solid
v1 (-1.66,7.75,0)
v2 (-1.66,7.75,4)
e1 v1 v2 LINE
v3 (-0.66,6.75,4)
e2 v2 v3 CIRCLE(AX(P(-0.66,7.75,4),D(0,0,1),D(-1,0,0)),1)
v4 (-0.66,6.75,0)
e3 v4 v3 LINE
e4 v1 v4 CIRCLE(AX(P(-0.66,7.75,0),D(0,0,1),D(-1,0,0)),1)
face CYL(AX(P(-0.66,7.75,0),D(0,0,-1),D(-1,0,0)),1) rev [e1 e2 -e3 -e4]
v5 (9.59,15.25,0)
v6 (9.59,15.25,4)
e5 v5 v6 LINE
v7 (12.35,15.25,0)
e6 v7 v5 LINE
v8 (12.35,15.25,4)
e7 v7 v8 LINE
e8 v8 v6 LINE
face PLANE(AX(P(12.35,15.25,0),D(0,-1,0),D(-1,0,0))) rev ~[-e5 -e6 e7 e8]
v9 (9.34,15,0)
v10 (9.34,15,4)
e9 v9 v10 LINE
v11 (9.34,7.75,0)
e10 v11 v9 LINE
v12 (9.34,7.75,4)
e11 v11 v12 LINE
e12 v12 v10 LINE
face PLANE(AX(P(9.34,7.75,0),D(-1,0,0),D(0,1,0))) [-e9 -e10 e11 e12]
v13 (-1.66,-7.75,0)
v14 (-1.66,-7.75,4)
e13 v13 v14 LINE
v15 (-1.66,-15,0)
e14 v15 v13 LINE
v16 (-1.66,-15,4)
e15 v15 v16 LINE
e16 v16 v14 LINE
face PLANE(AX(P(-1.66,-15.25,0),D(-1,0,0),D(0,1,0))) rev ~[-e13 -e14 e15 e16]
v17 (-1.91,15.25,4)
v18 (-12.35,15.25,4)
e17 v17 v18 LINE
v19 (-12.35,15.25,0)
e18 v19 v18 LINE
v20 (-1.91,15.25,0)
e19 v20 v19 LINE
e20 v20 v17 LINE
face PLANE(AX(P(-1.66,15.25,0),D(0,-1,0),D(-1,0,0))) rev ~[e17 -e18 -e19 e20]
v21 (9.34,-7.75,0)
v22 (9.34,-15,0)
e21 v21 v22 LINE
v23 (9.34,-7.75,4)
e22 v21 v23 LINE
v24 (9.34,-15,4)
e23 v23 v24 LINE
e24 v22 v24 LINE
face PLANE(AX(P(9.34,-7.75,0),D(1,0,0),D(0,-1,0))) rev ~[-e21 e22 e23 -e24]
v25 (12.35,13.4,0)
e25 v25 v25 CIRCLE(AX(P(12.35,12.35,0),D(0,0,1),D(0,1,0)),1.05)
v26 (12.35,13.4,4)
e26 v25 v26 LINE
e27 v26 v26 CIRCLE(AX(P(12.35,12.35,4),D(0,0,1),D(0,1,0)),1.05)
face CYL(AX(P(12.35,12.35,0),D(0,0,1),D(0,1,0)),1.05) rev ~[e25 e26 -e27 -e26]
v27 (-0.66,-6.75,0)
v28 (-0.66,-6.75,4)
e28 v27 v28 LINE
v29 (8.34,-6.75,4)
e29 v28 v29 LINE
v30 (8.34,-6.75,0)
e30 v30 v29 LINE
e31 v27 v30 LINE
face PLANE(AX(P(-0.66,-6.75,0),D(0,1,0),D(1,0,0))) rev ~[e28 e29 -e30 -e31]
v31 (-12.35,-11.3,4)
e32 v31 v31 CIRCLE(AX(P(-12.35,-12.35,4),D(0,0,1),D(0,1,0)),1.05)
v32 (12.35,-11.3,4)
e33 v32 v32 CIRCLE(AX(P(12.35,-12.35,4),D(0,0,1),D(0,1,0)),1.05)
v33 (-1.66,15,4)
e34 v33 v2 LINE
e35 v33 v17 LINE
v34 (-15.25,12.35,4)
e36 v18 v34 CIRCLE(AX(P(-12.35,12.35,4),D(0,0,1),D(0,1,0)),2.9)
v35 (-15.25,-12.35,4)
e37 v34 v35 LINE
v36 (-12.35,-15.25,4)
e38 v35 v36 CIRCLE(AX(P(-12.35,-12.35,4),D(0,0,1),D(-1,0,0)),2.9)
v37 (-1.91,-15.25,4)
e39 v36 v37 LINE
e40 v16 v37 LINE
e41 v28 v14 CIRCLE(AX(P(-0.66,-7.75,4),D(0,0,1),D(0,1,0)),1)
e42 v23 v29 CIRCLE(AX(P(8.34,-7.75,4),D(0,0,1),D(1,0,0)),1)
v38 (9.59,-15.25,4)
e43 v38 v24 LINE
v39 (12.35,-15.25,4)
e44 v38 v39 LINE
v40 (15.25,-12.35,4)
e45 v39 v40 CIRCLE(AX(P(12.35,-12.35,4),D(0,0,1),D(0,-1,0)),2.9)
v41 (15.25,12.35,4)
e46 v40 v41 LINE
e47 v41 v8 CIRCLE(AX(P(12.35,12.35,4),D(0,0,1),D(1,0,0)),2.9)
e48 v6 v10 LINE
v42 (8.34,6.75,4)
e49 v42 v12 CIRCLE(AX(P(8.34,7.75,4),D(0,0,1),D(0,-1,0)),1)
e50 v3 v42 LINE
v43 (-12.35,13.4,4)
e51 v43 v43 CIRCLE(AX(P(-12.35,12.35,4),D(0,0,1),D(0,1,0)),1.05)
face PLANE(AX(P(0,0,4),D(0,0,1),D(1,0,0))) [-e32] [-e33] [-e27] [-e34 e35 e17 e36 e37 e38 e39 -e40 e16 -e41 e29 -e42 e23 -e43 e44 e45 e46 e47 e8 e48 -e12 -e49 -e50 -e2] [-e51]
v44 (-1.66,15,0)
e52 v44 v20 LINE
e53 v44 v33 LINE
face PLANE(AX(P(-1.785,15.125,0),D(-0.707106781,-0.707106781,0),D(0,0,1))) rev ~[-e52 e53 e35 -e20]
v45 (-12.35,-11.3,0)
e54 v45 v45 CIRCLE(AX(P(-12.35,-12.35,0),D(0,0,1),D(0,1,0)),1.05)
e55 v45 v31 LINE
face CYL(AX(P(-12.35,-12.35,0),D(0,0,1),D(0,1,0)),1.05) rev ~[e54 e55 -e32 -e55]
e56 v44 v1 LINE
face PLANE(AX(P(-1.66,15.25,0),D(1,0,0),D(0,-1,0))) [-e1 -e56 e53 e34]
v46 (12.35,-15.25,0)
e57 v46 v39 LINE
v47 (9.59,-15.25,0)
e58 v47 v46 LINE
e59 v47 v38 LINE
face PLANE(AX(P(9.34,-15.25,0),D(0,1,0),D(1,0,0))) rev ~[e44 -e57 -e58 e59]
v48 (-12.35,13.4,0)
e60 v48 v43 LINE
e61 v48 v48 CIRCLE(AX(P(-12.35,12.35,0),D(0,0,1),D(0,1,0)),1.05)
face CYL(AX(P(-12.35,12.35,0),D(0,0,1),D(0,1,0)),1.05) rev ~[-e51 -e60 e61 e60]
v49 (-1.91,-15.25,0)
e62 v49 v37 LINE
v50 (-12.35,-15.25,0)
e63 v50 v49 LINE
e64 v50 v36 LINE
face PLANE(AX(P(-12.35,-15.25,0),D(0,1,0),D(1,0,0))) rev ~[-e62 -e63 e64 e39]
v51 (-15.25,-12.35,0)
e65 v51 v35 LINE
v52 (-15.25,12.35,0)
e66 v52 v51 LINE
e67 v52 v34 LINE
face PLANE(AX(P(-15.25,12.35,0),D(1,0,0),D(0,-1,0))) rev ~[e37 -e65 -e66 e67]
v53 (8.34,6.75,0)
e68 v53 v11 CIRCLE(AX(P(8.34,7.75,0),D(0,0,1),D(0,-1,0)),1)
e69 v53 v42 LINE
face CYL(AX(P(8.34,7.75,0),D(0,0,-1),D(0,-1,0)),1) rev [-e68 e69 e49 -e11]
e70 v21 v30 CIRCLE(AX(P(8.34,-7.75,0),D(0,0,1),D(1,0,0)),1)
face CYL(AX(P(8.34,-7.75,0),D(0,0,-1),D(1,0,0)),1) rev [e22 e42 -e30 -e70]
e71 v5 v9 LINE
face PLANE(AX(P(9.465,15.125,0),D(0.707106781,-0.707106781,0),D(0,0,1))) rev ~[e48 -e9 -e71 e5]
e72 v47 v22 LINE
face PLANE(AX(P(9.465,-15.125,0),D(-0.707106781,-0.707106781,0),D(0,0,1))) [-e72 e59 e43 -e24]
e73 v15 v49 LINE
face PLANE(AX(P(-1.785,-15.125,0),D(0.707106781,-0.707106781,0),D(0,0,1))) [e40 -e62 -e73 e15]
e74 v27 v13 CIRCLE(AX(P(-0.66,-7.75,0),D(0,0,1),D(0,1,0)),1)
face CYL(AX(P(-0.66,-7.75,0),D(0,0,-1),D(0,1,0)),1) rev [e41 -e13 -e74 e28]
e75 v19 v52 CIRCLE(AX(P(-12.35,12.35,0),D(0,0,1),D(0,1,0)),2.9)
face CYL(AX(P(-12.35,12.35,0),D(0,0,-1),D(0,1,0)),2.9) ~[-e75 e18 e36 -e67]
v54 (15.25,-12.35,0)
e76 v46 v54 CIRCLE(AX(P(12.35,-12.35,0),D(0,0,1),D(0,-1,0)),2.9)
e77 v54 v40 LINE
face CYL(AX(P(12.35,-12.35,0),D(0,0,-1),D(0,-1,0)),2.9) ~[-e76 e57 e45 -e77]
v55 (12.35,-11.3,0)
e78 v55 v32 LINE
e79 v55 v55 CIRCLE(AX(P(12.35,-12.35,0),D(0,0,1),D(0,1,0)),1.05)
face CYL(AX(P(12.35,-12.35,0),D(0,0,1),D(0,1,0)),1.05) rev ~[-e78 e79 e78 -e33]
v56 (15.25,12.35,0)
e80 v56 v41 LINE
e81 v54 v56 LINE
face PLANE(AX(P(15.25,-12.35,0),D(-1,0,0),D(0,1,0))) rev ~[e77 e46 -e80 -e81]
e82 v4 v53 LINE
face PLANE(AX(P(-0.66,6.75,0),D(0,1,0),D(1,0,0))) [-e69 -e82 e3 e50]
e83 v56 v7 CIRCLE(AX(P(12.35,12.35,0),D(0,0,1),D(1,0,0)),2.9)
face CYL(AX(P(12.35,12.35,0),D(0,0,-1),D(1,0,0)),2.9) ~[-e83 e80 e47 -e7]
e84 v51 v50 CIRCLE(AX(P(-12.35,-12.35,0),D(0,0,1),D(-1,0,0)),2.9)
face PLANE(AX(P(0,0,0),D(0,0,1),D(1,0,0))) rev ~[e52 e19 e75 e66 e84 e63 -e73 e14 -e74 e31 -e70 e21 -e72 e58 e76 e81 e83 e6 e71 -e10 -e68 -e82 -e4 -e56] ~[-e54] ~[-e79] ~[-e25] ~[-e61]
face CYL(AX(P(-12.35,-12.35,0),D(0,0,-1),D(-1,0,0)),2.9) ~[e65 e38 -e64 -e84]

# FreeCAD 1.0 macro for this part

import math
import FreeCAD as App
import Part
import Sketcher
from FreeCAD import Vector


def edges_at(feature, points):
    """Names of the edges that pass closest to the given points."""
    edges = feature.Shape.Edges
    near = lambda p: min(range(len(edges)), key=lambda i: edges[i].distToShape(Part.Vertex(*p))[0])
    return sorted({f"Edge{near(p) + 1}" for p in points})

doc = App.newDocument("Part")
body = doc.addObject("PartDesign::Body", "Body")

# Sketch on XY plane
sketch1 = body.newObject("Sketcher::SketchObject", "Sketch")
sketch1.AttachmentSupport = (doc.getObject("XY_Plane"), [""])
sketch1.MapMode = "FlatFace"
sketch1.addGeometry(Part.ArcOfCircle(Part.Circle(Vector(12.3, 12.3, 0), Vector(0, 0, 1), 2.9), math.radians(0), math.radians(90)), False)
sketch1.addGeometry(Part.LineSegment(Vector(12.3, 15.2, 0), Vector(9.3, 15.2, 0)), False)
sketch1.addGeometry(Part.LineSegment(Vector(9.3, 15.2, 0), Vector(9.3, 7.8, 0)), False)
sketch1.addGeometry(Part.ArcOfCircle(Part.Circle(Vector(8.3, 7.8, 0), Vector(0, 0, 1), 1), math.radians(-90), math.radians(0)), False)
sketch1.addGeometry(Part.LineSegment(Vector(8.3, 6.8, 0), Vector(-0.7, 6.8, 0)), False)
sketch1.addGeometry(Part.ArcOfCircle(Part.Circle(Vector(-0.7, 7.8, 0), Vector(0, 0, 1), 1), math.radians(180), math.radians(270)), False)
sketch1.addGeometry(Part.LineSegment(Vector(-1.7, 7.8, 0), Vector(-1.7, 15.2, 0)), False)
sketch1.addGeometry(Part.LineSegment(Vector(-1.7, 15.2, 0), Vector(-12.3, 15.2, 0)), False)
sketch1.addGeometry(Part.ArcOfCircle(Part.Circle(Vector(-12.3, 12.3, 0), Vector(0, 0, 1), 2.9), math.radians(90), math.radians(180)), False)
sketch1.addGeometry(Part.LineSegment(Vector(-15.2, 12.3, 0), Vector(-15.2, -12.3, 0)), False)
sketch1.addGeometry(Part.ArcOfCircle(Part.Circle(Vector(-12.3, -12.3, 0), Vector(0, 0, 1), 2.9), math.radians(180), math.radians(270)), False)
sketch1.addGeometry(Part.LineSegment(Vector(-12.3, -15.2, 0), Vector(-1.7, -15.2, 0)), False)
sketch1.addGeometry(Part.LineSegment(Vector(-1.7, -15.2, 0), Vector(-1.7, -7.8, 0)), False)
sketch1.addGeometry(Part.ArcOfCircle(Part.Circle(Vector(-0.7, -7.8, 0), Vector(0, 0, 1), 1), math.radians(90), math.radians(180)), False)
sketch1.addGeometry(Part.LineSegment(Vector(-0.7, -6.8, 0), Vector(8.3, -6.8, 0)), False)
sketch1.addGeometry(Part.ArcOfCircle(Part.Circle(Vector(8.3, -7.8, 0), Vector(0, 0, 1), 1), math.radians(0), math.radians(90)), False)
sketch1.addGeometry(Part.LineSegment(Vector(9.3, -7.8, 0), Vector(9.3, -15.2, 0)), False)
sketch1.addGeometry(Part.LineSegment(Vector(9.3, -15.2, 0), Vector(12.3, -15.2, 0)), False)
sketch1.addGeometry(Part.ArcOfCircle(Part.Circle(Vector(12.3, -12.3, 0), Vector(0, 0, 1), 2.9), math.radians(-90), math.radians(0)), False)
sketch1.addGeometry(Part.LineSegment(Vector(15.2, -12.3, 0), Vector(15.2, 12.3, 0)), False)
sketch1.addConstraint(Sketcher.Constraint("Tangent", 0, 2, 1, 1))
sketch1.addConstraint(Sketcher.Constraint("Coincident", 1, 2, 2, 1))
sketch1.addConstraint(Sketcher.Constraint("Tangent", 2, 2, 3, 2))
sketch1.addConstraint(Sketcher.Constraint("Tangent", 3, 1, 4, 1))
sketch1.addConstraint(Sketcher.Constraint("Tangent", 4, 2, 5, 2))
sketch1.addConstraint(Sketcher.Constraint("Tangent", 5, 1, 6, 1))
sketch1.addConstraint(Sketcher.Constraint("Coincident", 6, 2, 7, 1))
sketch1.addConstraint(Sketcher.Constraint("Tangent", 7, 2, 8, 1))
sketch1.addConstraint(Sketcher.Constraint("Tangent", 8, 2, 9, 1))
sketch1.addConstraint(Sketcher.Constraint("Tangent", 9, 2, 10, 1))
sketch1.addConstraint(Sketcher.Constraint("Tangent", 10, 2, 11, 1))
sketch1.addConstraint(Sketcher.Constraint("Coincident", 11, 2, 12, 1))
sketch1.addConstraint(Sketcher.Constraint("Tangent", 12, 2, 13, 2))
sketch1.addConstraint(Sketcher.Constraint("Tangent", 13, 1, 14, 1))
sketch1.addConstraint(Sketcher.Constraint("Tangent", 14, 2, 15, 2))
sketch1.addConstraint(Sketcher.Constraint("Tangent", 15, 1, 16, 1))
sketch1.addConstraint(Sketcher.Constraint("Coincident", 16, 2, 17, 1))
sketch1.addConstraint(Sketcher.Constraint("Tangent", 17, 2, 18, 1))
sketch1.addConstraint(Sketcher.Constraint("Tangent", 18, 2, 19, 1))
sketch1.addConstraint(Sketcher.Constraint("Tangent", 19, 2, 0, 1))
sketch1.addConstraint(Sketcher.Constraint("Horizontal", 1))
sketch1.addConstraint(Sketcher.Constraint("Vertical", 2))
sketch1.addConstraint(Sketcher.Constraint("Horizontal", 4))
sketch1.addConstraint(Sketcher.Constraint("Vertical", 6))
sketch1.addConstraint(Sketcher.Constraint("Horizontal", 7))
sketch1.addConstraint(Sketcher.Constraint("Vertical", 9))
sketch1.addConstraint(Sketcher.Constraint("Horizontal", 11))
sketch1.addConstraint(Sketcher.Constraint("Vertical", 12))
sketch1.addConstraint(Sketcher.Constraint("Horizontal", 14))
sketch1.addConstraint(Sketcher.Constraint("Vertical", 16))
sketch1.addConstraint(Sketcher.Constraint("Horizontal", 17))
sketch1.addConstraint(Sketcher.Constraint("Vertical", 19))
sketch1.addConstraint(Sketcher.Constraint("Equal", 3, 5))
sketch1.addConstraint(Sketcher.Constraint("Equal", 0, 8))
sketch1.addConstraint(Sketcher.Constraint("Equal", 8, 10))
sketch1.addConstraint(Sketcher.Constraint("Equal", 5, 13))
sketch1.addConstraint(Sketcher.Constraint("Equal", 13, 15))
sketch1.addConstraint(Sketcher.Constraint("Equal", 10, 18))
sketch1.addConstraint(Sketcher.Constraint("Symmetric", 0, 3, 10, 3, -1, 1))
sketch1.addConstraint(Sketcher.Constraint("Symmetric", 5, 3, 13, 3, -1))
sketch1.addConstraint(Sketcher.Constraint("Symmetric", 1, 2, 16, 2, -1))
sketch1.addConstraint(Sketcher.Constraint("Horizontal", 0, 3, 8, 3))
sketch1.addConstraint(Sketcher.Constraint("Radius", 3, 1.0))
sketch1.addConstraint(Sketcher.Constraint("Radius", 0, 2.9))
sketch1.addConstraint(Sketcher.Constraint("DistanceX", 5, 1, 2, 2, 11.0))
sketch1.addConstraint(Sketcher.Constraint("DistanceY", 3, 1, 1, 2, 8.5))
sketch1.addConstraint(Sketcher.Constraint("DistanceY", 9, 2, 9, 1, 24.7))
sketch1.addConstraint(Sketcher.Constraint("DistanceX", 1, 2, 1, 1, 3.01))
sketch1.addConstraint(Sketcher.Constraint("DistanceX", 7, 2, 7, 1, 10.69))
pad1 = body.newObject("PartDesign::Pad", "Pad")
pad1.Profile = sketch1
pad1.Length = 4

# Sketch on XY plane
sketch2 = body.newObject("Sketcher::SketchObject", "Sketch001")
sketch2.AttachmentSupport = (doc.getObject("XY_Plane"), [""])
sketch2.MapMode = "FlatFace"
sketch2.addGeometry(Part.Circle(Vector(12.3, 12.3, 0), Vector(0, 0, 1), 1.1), False)
sketch2.addGeometry(Part.Circle(Vector(12.3, -12.3, 0), Vector(0, 0, 1), 1.1), False)
sketch2.addGeometry(Part.Circle(Vector(-12.3, -12.3, 0), Vector(0, 0, 1), 1.1), False)
sketch2.addGeometry(Part.Circle(Vector(-12.3, 12.3, 0), Vector(0, 0, 1), 1.1), False)
sketch2.addConstraint(Sketcher.Constraint("Equal", 0, 1))
sketch2.addConstraint(Sketcher.Constraint("Equal", 1, 2))
sketch2.addConstraint(Sketcher.Constraint("Equal", 2, 3))
sketch2.addConstraint(Sketcher.Constraint("Symmetric", 0, 3, 2, 3, -1, 1))
sketch2.addConstraint(Sketcher.Constraint("Symmetric", 1, 3, 3, 3, -1, 1))
sketch2.addConstraint(Sketcher.Constraint("Symmetric", 1, 3, 2, 3, -2))
sketch2.addConstraint(Sketcher.Constraint("Diameter", 0, 2.1))
sketch2.addConstraint(Sketcher.Constraint("DistanceY", 1, 3, 0, 3, 24.7))
sketch2.addConstraint(Sketcher.Constraint("DistanceX", 2, 3, 1, 3, 24.7))
doc.recompute()
hole = body.newObject("PartDesign::Hole", "Hole")
hole.Profile = sketch2
hole.ThreadType = "None"
hole.Diameter = 2.1
hole.DepthType = "ThroughAll"
hole.Reversed = True
doc.recompute()

chamfer = body.newObject("PartDesign::Chamfer", "Chamfer")
chamfer.Base = (hole, edges_at(hole, [
    (9.34, 15.25, 2),
    (-1.66, 15.25, 2),
    (-1.66, -15.25, 2),
    (9.34, -15.25, 2),
]))
chamfer.Size = 0.25

doc.recompute()
